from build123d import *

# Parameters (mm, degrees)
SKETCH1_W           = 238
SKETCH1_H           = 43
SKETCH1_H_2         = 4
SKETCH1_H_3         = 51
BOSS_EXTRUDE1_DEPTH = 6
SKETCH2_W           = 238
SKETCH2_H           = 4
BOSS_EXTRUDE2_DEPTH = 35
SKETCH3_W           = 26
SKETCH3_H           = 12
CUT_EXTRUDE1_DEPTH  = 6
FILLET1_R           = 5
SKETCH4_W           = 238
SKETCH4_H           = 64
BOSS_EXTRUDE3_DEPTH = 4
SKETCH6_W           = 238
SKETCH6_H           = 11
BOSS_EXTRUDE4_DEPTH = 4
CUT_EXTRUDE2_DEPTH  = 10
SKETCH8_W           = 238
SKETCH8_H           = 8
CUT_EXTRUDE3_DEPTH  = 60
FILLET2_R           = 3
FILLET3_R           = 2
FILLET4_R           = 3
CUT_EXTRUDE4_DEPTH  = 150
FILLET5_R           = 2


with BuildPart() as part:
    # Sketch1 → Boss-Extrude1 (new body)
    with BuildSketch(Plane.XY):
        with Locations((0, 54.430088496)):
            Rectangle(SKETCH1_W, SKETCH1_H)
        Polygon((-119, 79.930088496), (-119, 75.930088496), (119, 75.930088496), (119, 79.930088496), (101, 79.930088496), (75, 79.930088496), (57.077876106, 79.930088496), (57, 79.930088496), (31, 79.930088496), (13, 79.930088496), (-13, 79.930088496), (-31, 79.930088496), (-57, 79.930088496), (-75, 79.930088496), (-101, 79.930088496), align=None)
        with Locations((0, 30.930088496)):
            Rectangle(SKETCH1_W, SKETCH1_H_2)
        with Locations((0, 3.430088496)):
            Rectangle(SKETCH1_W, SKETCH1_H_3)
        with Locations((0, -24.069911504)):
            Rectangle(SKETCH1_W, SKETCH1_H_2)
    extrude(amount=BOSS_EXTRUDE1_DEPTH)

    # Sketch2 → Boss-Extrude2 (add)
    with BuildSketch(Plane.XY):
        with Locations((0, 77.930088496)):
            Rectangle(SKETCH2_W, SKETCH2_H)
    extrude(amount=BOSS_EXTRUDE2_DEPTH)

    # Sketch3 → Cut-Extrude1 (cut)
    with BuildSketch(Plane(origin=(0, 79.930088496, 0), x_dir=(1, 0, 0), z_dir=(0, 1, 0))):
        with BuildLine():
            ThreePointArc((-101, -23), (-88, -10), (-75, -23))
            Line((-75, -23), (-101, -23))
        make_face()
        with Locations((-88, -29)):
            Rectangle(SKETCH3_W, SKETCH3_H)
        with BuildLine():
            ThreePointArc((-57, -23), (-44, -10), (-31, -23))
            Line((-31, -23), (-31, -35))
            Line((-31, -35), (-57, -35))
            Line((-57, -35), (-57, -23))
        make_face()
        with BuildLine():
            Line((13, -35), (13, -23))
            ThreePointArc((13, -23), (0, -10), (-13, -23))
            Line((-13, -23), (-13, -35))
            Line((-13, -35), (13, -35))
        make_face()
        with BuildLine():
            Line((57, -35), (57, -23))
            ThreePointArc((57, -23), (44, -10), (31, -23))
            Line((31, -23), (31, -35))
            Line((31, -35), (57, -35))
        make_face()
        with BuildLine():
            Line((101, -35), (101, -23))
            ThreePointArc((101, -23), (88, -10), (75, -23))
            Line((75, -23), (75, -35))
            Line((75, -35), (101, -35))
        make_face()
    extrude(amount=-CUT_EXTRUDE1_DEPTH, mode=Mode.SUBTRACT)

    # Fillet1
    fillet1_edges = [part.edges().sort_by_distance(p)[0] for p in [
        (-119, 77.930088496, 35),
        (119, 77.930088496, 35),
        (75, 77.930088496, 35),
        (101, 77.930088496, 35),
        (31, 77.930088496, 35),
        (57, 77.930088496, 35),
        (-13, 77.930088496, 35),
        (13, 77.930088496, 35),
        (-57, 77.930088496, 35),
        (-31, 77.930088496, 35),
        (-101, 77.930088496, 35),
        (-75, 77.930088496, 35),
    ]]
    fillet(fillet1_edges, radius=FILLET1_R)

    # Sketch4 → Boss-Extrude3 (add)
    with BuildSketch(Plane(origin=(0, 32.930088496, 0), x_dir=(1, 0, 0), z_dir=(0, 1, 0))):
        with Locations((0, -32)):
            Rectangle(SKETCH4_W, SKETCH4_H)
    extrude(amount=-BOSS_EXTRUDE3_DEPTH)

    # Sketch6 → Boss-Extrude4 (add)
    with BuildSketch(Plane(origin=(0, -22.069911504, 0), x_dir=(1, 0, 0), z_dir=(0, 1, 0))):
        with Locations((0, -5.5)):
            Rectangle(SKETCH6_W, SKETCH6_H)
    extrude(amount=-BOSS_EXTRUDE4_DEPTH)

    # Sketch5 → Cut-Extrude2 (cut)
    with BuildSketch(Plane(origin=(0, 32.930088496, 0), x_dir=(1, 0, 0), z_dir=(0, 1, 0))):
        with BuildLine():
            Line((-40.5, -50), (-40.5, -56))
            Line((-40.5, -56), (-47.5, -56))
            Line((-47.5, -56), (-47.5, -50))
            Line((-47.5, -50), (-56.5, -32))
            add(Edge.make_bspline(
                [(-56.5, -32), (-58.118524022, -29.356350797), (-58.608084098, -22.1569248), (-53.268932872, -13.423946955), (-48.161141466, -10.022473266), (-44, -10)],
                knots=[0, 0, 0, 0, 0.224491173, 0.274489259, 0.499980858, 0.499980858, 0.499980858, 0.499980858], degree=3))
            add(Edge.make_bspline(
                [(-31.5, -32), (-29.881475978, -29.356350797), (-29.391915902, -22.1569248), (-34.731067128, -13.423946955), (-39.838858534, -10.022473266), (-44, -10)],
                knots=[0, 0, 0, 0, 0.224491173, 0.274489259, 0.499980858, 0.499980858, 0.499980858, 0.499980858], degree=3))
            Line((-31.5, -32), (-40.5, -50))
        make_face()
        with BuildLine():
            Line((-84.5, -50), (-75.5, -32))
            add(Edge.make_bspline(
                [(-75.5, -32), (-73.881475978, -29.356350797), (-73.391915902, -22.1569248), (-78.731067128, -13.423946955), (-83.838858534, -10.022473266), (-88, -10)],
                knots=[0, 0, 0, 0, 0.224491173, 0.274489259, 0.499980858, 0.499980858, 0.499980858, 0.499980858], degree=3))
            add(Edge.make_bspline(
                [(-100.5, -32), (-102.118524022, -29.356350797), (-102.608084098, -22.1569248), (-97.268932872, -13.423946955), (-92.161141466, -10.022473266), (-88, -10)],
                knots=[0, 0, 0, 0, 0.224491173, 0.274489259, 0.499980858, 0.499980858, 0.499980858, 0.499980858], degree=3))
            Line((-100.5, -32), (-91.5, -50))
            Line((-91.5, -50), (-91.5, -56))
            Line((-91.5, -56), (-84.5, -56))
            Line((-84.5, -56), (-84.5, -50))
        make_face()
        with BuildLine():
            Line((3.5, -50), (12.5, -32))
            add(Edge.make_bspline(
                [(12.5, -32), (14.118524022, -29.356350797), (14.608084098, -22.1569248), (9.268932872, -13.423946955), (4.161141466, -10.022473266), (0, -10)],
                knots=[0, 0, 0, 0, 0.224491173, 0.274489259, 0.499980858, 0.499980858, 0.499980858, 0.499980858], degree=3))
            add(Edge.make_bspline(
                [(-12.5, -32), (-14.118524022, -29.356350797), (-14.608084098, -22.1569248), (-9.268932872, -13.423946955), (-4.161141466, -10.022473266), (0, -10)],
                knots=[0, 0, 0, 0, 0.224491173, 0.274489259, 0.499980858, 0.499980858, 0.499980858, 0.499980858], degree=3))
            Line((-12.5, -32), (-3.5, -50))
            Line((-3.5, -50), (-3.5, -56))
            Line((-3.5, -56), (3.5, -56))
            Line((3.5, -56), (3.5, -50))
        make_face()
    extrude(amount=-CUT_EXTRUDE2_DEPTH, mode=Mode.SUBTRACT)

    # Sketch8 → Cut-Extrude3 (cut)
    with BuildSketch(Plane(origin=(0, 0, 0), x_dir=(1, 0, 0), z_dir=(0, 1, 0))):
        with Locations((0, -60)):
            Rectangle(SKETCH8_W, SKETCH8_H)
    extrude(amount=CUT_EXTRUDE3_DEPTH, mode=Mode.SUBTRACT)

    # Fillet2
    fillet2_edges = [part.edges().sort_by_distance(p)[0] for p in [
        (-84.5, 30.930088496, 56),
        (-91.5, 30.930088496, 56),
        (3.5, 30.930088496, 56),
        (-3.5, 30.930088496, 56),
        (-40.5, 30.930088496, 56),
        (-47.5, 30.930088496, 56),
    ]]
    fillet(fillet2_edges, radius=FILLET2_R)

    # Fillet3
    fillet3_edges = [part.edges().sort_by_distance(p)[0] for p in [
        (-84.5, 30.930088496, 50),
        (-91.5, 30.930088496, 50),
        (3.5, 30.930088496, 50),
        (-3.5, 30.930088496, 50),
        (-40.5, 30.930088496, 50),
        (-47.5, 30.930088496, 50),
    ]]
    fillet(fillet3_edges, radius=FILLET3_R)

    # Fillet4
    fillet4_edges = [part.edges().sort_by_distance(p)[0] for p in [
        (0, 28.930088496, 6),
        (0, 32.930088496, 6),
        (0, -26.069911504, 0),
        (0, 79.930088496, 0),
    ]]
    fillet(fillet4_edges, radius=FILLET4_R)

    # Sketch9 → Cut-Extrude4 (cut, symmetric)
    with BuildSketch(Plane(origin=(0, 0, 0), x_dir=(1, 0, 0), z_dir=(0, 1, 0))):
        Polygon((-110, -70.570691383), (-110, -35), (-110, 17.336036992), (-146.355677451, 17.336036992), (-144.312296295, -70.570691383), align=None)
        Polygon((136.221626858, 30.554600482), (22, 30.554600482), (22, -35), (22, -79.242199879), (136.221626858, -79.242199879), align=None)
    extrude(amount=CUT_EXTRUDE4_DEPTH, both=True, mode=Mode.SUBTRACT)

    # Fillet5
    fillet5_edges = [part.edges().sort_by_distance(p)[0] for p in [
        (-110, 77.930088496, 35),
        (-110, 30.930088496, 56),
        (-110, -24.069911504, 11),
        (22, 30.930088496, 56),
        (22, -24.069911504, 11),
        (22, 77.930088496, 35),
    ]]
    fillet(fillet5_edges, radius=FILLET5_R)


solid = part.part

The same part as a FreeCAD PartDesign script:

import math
import FreeCAD as App
import Part
import Sketcher

V = App.Vector
Q = App.Units.Quantity


def edges_at(feature, points):
    """Names of the edges that pass closest to the given points."""
    edges = feature.Shape.Edges
    near = lambda p: min(range(len(edges)), key=lambda i: edges[i].distToShape(Part.Vertex(*p))[0])
    return sorted({f"Edge{near(p) + 1}" for p in points})


def add_polygon(sketch, points):
    """Adds a closed chain of lines whose ends are joined by coincident constraints."""
    first, n = sketch.GeometryCount, len(points)
    for a, b in zip(points, points[1:] + points[:1]):
        sketch.addGeometry(Part.LineSegment(App.Vector(*a, 0), App.Vector(*b, 0)), False)
    for i in range(n):
        sketch.addConstraint(Sketcher.Constraint("Coincident", first + i, 2, first + (i + 1) % n, 1))

doc = App.newDocument("Part")
params = doc.addObject("Spreadsheet::Sheet", "Params")
for row, (alias, value) in enumerate([
    ("sketch1_width", "238 mm"),
    ("sketch1_height", "106 mm"),
    ("pad1_length", "6 mm"),
    ("sketch2_width", "238 mm"),
    ("sketch2_height", "4 mm"),
    ("pad2_length", "35 mm"),
    ("sketch3_radius", "13 mm"),
    ("sketch3_height", "12 mm"),
    ("pocket1_length", "6 mm"),
    ("fillet_radius", "5 mm"),
    ("sketch4_width", "238 mm"),
    ("sketch4_height", "64 mm"),
    ("pad3_length", "4 mm"),
    ("sketch5_width", "238 mm"),
    ("sketch5_height", "11 mm"),
    ("pad4_length", "4 mm"),
    ("sketch6_width", "7 mm"),
    ("sketch6_width2", "7 mm"),
    ("sketch6_width3", "7 mm"),
    ("sketch6_height", "6 mm"),
    ("sketch6_height2", "6 mm"),
    ("pocket2_length", "10 mm"),
    ("sketch7_width", "238 mm"),
    ("sketch7_height", "8 mm"),
    ("pocket3_length", "60 mm"),
    ("fillet2_radius", "3 mm"),
    ("fillet3_radius", "2 mm"),
    ("fillet4_radius", "3 mm"),
    ("pocket4_length", "300 mm"),
    ("fillet5_radius", "2 mm"),
], start=1):
    params.set(f"A{row}", alias)
    params.set(f"B{row}", "=" + value)
    params.setAlias(f"B{row}", alias)

body = doc.addObject("PartDesign::Body", "Body")

# Sketch on XY plane
sketch1 = doc.addObject("Sketcher::SketchObject", "Sketch")
body.addObject(sketch1)
sketch1.AttachmentSupport = (doc.XY_Plane, [""])
sketch1.MapMode = "FlatFace"
add_polygon(sketch1, [(119, 79.930088), (-119, 79.930088), (-119, -26.069912), (119, -26.069912)])  # lines 0-3
sketch1.addConstraint([
    Sketcher.Constraint("Horizontal", 0),
    Sketcher.Constraint("Vertical", 1),
    Sketcher.Constraint("Horizontal", 2),
    Sketcher.Constraint("Vertical", 3),
    Sketcher.Constraint("DistanceX", 0, 2, 0, 1, Q("238 mm")),
    Sketcher.Constraint("DistanceY", 1, 2, 1, 1, Q("106 mm")),
    Sketcher.Constraint("DistanceX", 0, 2, -1, 1, Q("119 mm")),
    Sketcher.Constraint("DistanceY", -1, 1, 0, 2, Q("79.930088 mm")),
])
sketch1.setExpression("Constraints[8]", "Params.sketch1_width")
sketch1.setExpression("Constraints[9]", "Params.sketch1_height")
pad1 = doc.addObject("PartDesign::Pad", "Pad")
body.addObject(pad1)
pad1.Profile = sketch1
pad1.setExpression("Length", "Params.pad1_length")

# Sketch on XY plane
sketch2 = doc.addObject("Sketcher::SketchObject", "Sketch001")
body.addObject(sketch2)
sketch2.AttachmentSupport = (doc.XY_Plane, [""])
sketch2.MapMode = "FlatFace"
add_polygon(sketch2, [(-119, 79.930088), (-119, 75.930088), (119, 75.930088), (119, 79.930088)])  # lines 0-3
sketch2.addConstraint([
    Sketcher.Constraint("Vertical", 0),
    Sketcher.Constraint("Horizontal", 1),
    Sketcher.Constraint("Vertical", 2),
    Sketcher.Constraint("Horizontal", 3),
    Sketcher.Constraint("DistanceX", 1, 1, 1, 2, Q("238 mm")),
    Sketcher.Constraint("DistanceY", 0, 2, 0, 1, Q("4 mm")),
    Sketcher.Constraint("DistanceX", 0, 2, -1, 1, Q("119 mm")),
    Sketcher.Constraint("DistanceY", -1, 1, 0, 2, Q("75.930088 mm")),
])
sketch2.setExpression("Constraints[8]", "Params.sketch2_width")
sketch2.setExpression("Constraints[9]", "Params.sketch2_height")
pad2 = doc.addObject("PartDesign::Pad", "Pad001")
body.addObject(pad2)
pad2.Profile = sketch2
pad2.setExpression("Length", "Params.pad2_length")

# Sketch on XZ plane
sketch3 = doc.addObject("Sketcher::SketchObject", "Sketch002")
body.addObject(sketch3)
sketch3.AttachmentSupport = (doc.XZ_Plane, [""])
sketch3.MapMode = "FlatFace"
sketch3.AttachmentOffset = App.Placement(V(0, 0, -79.930088), App.Rotation())
sketch3.addGeometry([
    Part.ArcOfCircle(Part.Circle(V(-88, 23, 0), V(0, 0, 1), 13), math.radians(180), math.radians(360)),  # 0
    Part.LineSegment(V(-101, 23, 0), V(-101, 35, 0)),  # 1
    Part.LineSegment(V(-101, 35, 0), V(-75, 35, 0)),  # 2
    Part.LineSegment(V(-75, 35, 0), V(-75, 23, 0)),  # 3
    Part.ArcOfCircle(Part.Circle(V(-44, 23, 0), V(0, 0, 1), 13), math.radians(180), math.radians(360)),  # 4
    Part.LineSegment(V(-57, 23, 0), V(-57, 35, 0)),  # 5
    Part.LineSegment(V(-57, 35, 0), V(-31, 35, 0)),  # 6
    Part.LineSegment(V(-31, 35, 0), V(-31, 23, 0)),  # 7
    Part.LineSegment(V(13, 35, 0), V(13, 23, 0)),  # 8
    Part.ArcOfCircle(Part.Circle(V(0, 23, 0), V(0, 0, 1), 13), math.radians(180), math.radians(360)),  # 9
    Part.LineSegment(V(-13, 23, 0), V(-13, 35, 0)),  # 10
    Part.LineSegment(V(-13, 35, 0), V(13, 35, 0)),  # 11
    Part.LineSegment(V(57, 35, 0), V(57, 23, 0)),  # 12
    Part.ArcOfCircle(Part.Circle(V(44, 23, 0), V(0, 0, 1), 13), math.radians(180), math.radians(360)),  # 13
    Part.LineSegment(V(31, 23, 0), V(31, 35, 0)),  # 14
    Part.LineSegment(V(31, 35, 0), V(57, 35, 0)),  # 15
    Part.LineSegment(V(101, 35, 0), V(101, 23, 0)),  # 16
    Part.ArcOfCircle(Part.Circle(V(88, 23, 0), V(0, 0, 1), 13), math.radians(180), math.radians(360)),  # 17
    Part.LineSegment(V(75, 23, 0), V(75, 35, 0)),  # 18
    Part.LineSegment(V(75, 35, 0), V(101, 35, 0)),  # 19
], False)
sketch3.addConstraint([
    Sketcher.Constraint("Tangent", 0, 1, 1, 1),
    Sketcher.Constraint("Coincident", 1, 2, 2, 1),
    Sketcher.Constraint("Coincident", 2, 2, 3, 1),
    Sketcher.Constraint("Tangent", 3, 2, 0, 2),
    Sketcher.Constraint("Tangent", 4, 1, 5, 1),
    Sketcher.Constraint("Coincident", 5, 2, 6, 1),
    Sketcher.Constraint("Coincident", 6, 2, 7, 1),
    Sketcher.Constraint("Tangent", 7, 2, 4, 2),
    Sketcher.Constraint("Tangent", 8, 2, 9, 2),
    Sketcher.Constraint("Tangent", 9, 1, 10, 1),
    Sketcher.Constraint("Coincident", 10, 2, 11, 1),
    Sketcher.Constraint("Coincident", 11, 2, 8, 1),
    Sketcher.Constraint("Tangent", 12, 2, 13, 2),
    Sketcher.Constraint("Tangent", 13, 1, 14, 1),
    Sketcher.Constraint("Coincident", 14, 2, 15, 1),
    Sketcher.Constraint("Coincident", 15, 2, 12, 1),
    Sketcher.Constraint("Tangent", 16, 2, 17, 2),
    Sketcher.Constraint("Tangent", 17, 1, 18, 1),
    Sketcher.Constraint("Coincident", 18, 2, 19, 1),
    Sketcher.Constraint("Coincident", 19, 2, 16, 1),
    Sketcher.Constraint("Vertical", 1),
    Sketcher.Constraint("Horizontal", 2),
    Sketcher.Constraint("Vertical", 3),
    Sketcher.Constraint("Vertical", 5),
    Sketcher.Constraint("Horizontal", 6),
    Sketcher.Constraint("Vertical", 7),
    Sketcher.Constraint("Vertical", 8),
    Sketcher.Constraint("Vertical", 10),
    Sketcher.Constraint("Horizontal", 11),
    Sketcher.Constraint("Vertical", 12),
    Sketcher.Constraint("Vertical", 14),
    Sketcher.Constraint("Horizontal", 15),
    Sketcher.Constraint("Vertical", 16),
    Sketcher.Constraint("Vertical", 18),
    Sketcher.Constraint("Horizontal", 19),
    Sketcher.Constraint("Equal", 0, 4),
    Sketcher.Constraint("Equal", 4, 9),
    Sketcher.Constraint("Equal", 9, 13),
    Sketcher.Constraint("Equal", 13, 17),
    Sketcher.Constraint("Symmetric", 4, 3, 13, 3, -2),
    Sketcher.Constraint("Symmetric", 0, 3, 17, 3, -2),
    Sketcher.Constraint("PointOnObject", 9, 3, -2),
    Sketcher.Constraint("Horizontal", 0, 3, 4, 3),
    Sketcher.Constraint("Horizontal", 4, 3, 9, 3),
    Sketcher.Constraint("Horizontal", 2, 2, 5, 2),
    Sketcher.Constraint("Horizontal", 6, 2, 10, 2),
    Sketcher.Constraint("Horizontal", 11, 2, 14, 2),
    Sketcher.Constraint("Horizontal", 15, 2, 18, 2),
    Sketcher.Constraint("Radius", 0, Q("13 mm")),
    Sketcher.Constraint("DistanceY", 1, 1, 1, 2, Q("12 mm")),
    Sketcher.Constraint("DistanceX", 0, 3, -1, 1, Q("88 mm")),
    Sketcher.Constraint("DistanceY", -1, 1, 0, 3, Q("23 mm")),
    Sketcher.Constraint("DistanceX", 4, 3, -1, 1, Q("44 mm")),
])
sketch3.setExpression("Constraints[48]", "Params.sketch3_radius")
sketch3.setExpression("Constraints[49]", "Params.sketch3_height")
pocket1 = doc.addObject("PartDesign::Pocket", "Pocket")
body.addObject(pocket1)
pocket1.Profile = sketch3
pocket1.setExpression("Length", "Params.pocket1_length")
pocket1.Reversed = True
doc.recompute()

fillet = doc.addObject("PartDesign::Fillet", "Fillet")
body.addObject(fillet)
fillet.Base = (pocket1, edges_at(pocket1, [
    (-119, 77.93, 35),
    (119, 77.93, 35),
    (75, 77.93, 35),
    (101, 77.93, 35),
    (31, 77.93, 35),
    (57, 77.93, 35),
    (-13, 77.93, 35),
    (13, 77.93, 35),
    (-57, 77.93, 35),
    (-31, 77.93, 35),
    (-101, 77.93, 35),
    (-75, 77.93, 35),
]))
fillet.setExpression("Radius", "Params.fillet_radius")

# Sketch on XZ plane
sketch4 = doc.addObject("Sketcher::SketchObject", "Sketch003")
body.addObject(sketch4)
sketch4.AttachmentSupport = (doc.XZ_Plane, [""])
sketch4.MapMode = "FlatFace"
sketch4.AttachmentOffset = App.Placement(V(0, 0, -32.930088), App.Rotation())
add_polygon(sketch4, [(-119, 0), (-119, 64), (119, 64), (119, 0)])  # lines 0-3
sketch4.addConstraint([
    Sketcher.Constraint("Vertical", 0),
    Sketcher.Constraint("Horizontal", 1),
    Sketcher.Constraint("Vertical", 2),
    Sketcher.Constraint("Horizontal", 3),
    Sketcher.Constraint("Symmetric", 2, 2, 3, 2, -1, 1),
    Sketcher.Constraint("DistanceX", 1, 1, 1, 2, Q("238 mm")),
    Sketcher.Constraint("DistanceY", 0, 1, 0, 2, Q("64 mm")),
])
sketch4.setExpression("Constraints[9]", "Params.sketch4_width")
sketch4.setExpression("Constraints[10]", "Params.sketch4_height")
pad3 = doc.addObject("PartDesign::Pad", "Pad002")
body.addObject(pad3)
pad3.Profile = sketch4
pad3.setExpression("Length", "Params.pad3_length")

# Sketch on XZ plane
sketch5 = doc.addObject("Sketcher::SketchObject", "Sketch004")
body.addObject(sketch5)
sketch5.AttachmentSupport = (doc.XZ_Plane, [""])
sketch5.MapMode = "FlatFace"
sketch5.AttachmentOffset = App.Placement(V(0, 0, 22.069912), App.Rotation())
add_polygon(sketch5, [(-119, 0), (-119, 11), (119, 11), (119, 0)])  # lines 0-3
sketch5.addConstraint([
    Sketcher.Constraint("Vertical", 0),
    Sketcher.Constraint("Horizontal", 1),
    Sketcher.Constraint("Vertical", 2),
    Sketcher.Constraint("Horizontal", 3),
    Sketcher.Constraint("Symmetric", 2, 2, 3, 2, -1, 1),
    Sketcher.Constraint("DistanceX", 1, 1, 1, 2, Q("238 mm")),
    Sketcher.Constraint("DistanceY", 0, 1, 0, 2, Q("11 mm")),
])
sketch5.setExpression("Constraints[9]", "Params.sketch5_width")
sketch5.setExpression("Constraints[10]", "Params.sketch5_height")
pad4 = doc.addObject("PartDesign::Pad", "Pad003")
body.addObject(pad4)
pad4.Profile = sketch5
pad4.setExpression("Length", "Params.pad4_length")

# Sketch on XZ plane
sketch6 = doc.addObject("Sketcher::SketchObject", "Sketch005")
body.addObject(sketch6)
sketch6.AttachmentSupport = (doc.XZ_Plane, [""])
sketch6.MapMode = "FlatFace"
sketch6.AttachmentOffset = App.Placement(V(0, 0, -32.930088), App.Rotation())
sketch6.addGeometry([
    Part.LineSegment(V(-40.5, 56, 0), V(-40.5, 50, 0)),  # 0
    Part.LineSegment(V(-40.5, 50, 0), V(-31.5, 32, 0)),  # 1
    Part.BSplineCurve([V(-31.5, 32, 0), V(-29.881476, 29.356351, 0), V(-29.391916, 22.156925, 0), V(-34.731067, 13.423947, 0), V(-39.838859, 10.022473, 0), V(-44, 10, 0)], [4, 1, 1, 4], [0, 0.224491173, 0.274489259, 0.499980858], False, 3, [1, 1, 1, 1, 1, 1], False),  # 2
    Part.BSplineCurve([V(-56.5, 32, 0), V(-58.118524, 29.356351, 0), V(-58.608084, 22.156925, 0), V(-53.268933, 13.423947, 0), V(-48.161141, 10.022473, 0), V(-44, 10, 0)], [4, 1, 1, 4], [0, 0.224491173, 0.274489259, 0.499980858], False, 3, [1, 1, 1, 1, 1, 1], False),  # 3
    Part.LineSegment(V(-56.5, 32, 0), V(-47.5, 50, 0)),  # 4
    Part.LineSegment(V(-47.5, 50, 0), V(-47.5, 56, 0)),  # 5
    Part.LineSegment(V(-47.5, 56, 0), V(-40.5, 56, 0)),  # 6
    Part.LineSegment(V(-84.5, 50, 0), V(-75.5, 32, 0)),  # 7
    Part.BSplineCurve([V(-75.5, 32, 0), V(-73.881476, 29.356351, 0), V(-73.391916, 22.156925, 0), V(-78.731067, 13.423947, 0), V(-83.838859, 10.022473, 0), V(-88, 10, 0)], [4, 1, 1, 4], [0, 0.224491173, 0.274489259, 0.499980858], False, 3, [1, 1, 1, 1, 1, 1], False),  # 8
    Part.BSplineCurve([V(-100.5, 32, 0), V(-102.118524, 29.356351, 0), V(-102.608084, 22.156925, 0), V(-97.268933, 13.423947, 0), V(-92.161141, 10.022473, 0), V(-88, 10, 0)], [4, 1, 1, 4], [0, 0.224491173, 0.274489259, 0.499980858], False, 3, [1, 1, 1, 1, 1, 1], False),  # 9
    Part.LineSegment(V(-100.5, 32, 0), V(-91.5, 50, 0)),  # 10
    Part.LineSegment(V(-91.5, 50, 0), V(-91.5, 56, 0)),  # 11
    Part.LineSegment(V(-91.5, 56, 0), V(-84.5, 56, 0)),  # 12
    Part.LineSegment(V(-84.5, 56, 0), V(-84.5, 50, 0)),  # 13
    Part.LineSegment(V(3.5, 50, 0), V(12.5, 32, 0)),  # 14
    Part.BSplineCurve([V(12.5, 32, 0), V(14.118524, 29.356351, 0), V(14.608084, 22.156925, 0), V(9.268933, 13.423947, 0), V(4.161141, 10.022473, 0), V(0, 10, 0)], [4, 1, 1, 4], [0, 0.224491173, 0.274489259, 0.499980858], False, 3, [1, 1, 1, 1, 1, 1], False),  # 15
    Part.BSplineCurve([V(-12.5, 32, 0), V(-14.118524, 29.356351, 0), V(-14.608084, 22.156925, 0), V(-9.268933, 13.423947, 0), V(-4.161141, 10.022473, 0), V(0, 10, 0)], [4, 1, 1, 4], [0, 0.224491173, 0.274489259, 0.499980858], False, 3, [1, 1, 1, 1, 1, 1], False),  # 16
    Part.LineSegment(V(-12.5, 32, 0), V(-3.5, 50, 0)),  # 17
    Part.LineSegment(V(-3.5, 50, 0), V(-3.5, 56, 0)),  # 18
    Part.LineSegment(V(-3.5, 56, 0), V(3.5, 56, 0)),  # 19
    Part.LineSegment(V(3.5, 56, 0), V(3.5, 50, 0)),  # 20
], False)
sketch6.addConstraint([
    Sketcher.Constraint("Block", 2),
    Sketcher.Constraint("Block", 3),
    Sketcher.Constraint("Block", 8),
    Sketcher.Constraint("Block", 9),
    Sketcher.Constraint("Block", 15),
    Sketcher.Constraint("Block", 16),
    Sketcher.Constraint("Coincident", 0, 2, 1, 1),
    Sketcher.Constraint("Coincident", 1, 2, 2, 1),
    Sketcher.Constraint("Coincident", 3, 1, 4, 1),
    Sketcher.Constraint("Coincident", 4, 2, 5, 1),
    Sketcher.Constraint("Coincident", 5, 2, 6, 1),
    Sketcher.Constraint("Coincident", 6, 2, 0, 1),
    Sketcher.Constraint("Coincident", 7, 2, 8, 1),
    Sketcher.Constraint("Coincident", 9, 1, 10, 1),
    Sketcher.Constraint("Coincident", 10, 2, 11, 1),
    Sketcher.Constraint("Coincident", 11, 2, 12, 1),
    Sketcher.Constraint("Coincident", 12, 2, 13, 1),
    Sketcher.Constraint("Coincident", 13, 2, 7, 1),
    Sketcher.Constraint("Coincident", 14, 2, 15, 1),
    Sketcher.Constraint("Coincident", 16, 1, 17, 1),
    Sketcher.Constraint("Coincident", 17, 2, 18, 1),
    Sketcher.Constraint("Coincident", 18, 2, 19, 1),
    Sketcher.Constraint("Coincident", 19, 2, 20, 1),
    Sketcher.Constraint("Coincident", 20, 2, 14, 1),
    Sketcher.Constraint("Vertical", 0),
    Sketcher.Constraint("Vertical", 5),
    Sketcher.Constraint("Horizontal", 6),
    Sketcher.Constraint("Vertical", 11),
    Sketcher.Constraint("Horizontal", 12),
    Sketcher.Constraint("Vertical", 13),
    Sketcher.Constraint("Vertical", 18),
    Sketcher.Constraint("Horizontal", 19),
    Sketcher.Constraint("Vertical", 20),
    Sketcher.Constraint("DistanceX", 6, 1, 6, 2, Q("7 mm")),
    Sketcher.Constraint("DistanceX", 12, 1, 12, 2, Q("7 mm")),
    Sketcher.Constraint("DistanceX", 19, 1, 19, 2, Q("7 mm")),
    Sketcher.Constraint("DistanceY", 0, 2, 0, 1, Q("6 mm")),
    Sketcher.Constraint("DistanceY", 5, 1, 5, 2, Q("6 mm")),
    Sketcher.Constraint("DistanceY", 11, 1, 11, 2, Q("6 mm")),
    Sketcher.Constraint("DistanceY", 13, 2, 13, 1, Q("6 mm")),
    Sketcher.Constraint("DistanceY", 18, 1, 18, 2, Q("6 mm")),
    Sketcher.Constraint("DistanceY", 20, 2, 20, 1, Q("6 mm")),
    Sketcher.Constraint("DistanceY", -1, 1, 0, 2, Q("50 mm")),
    Sketcher.Constraint("DistanceY", -1, 1, 10, 2, Q("50 mm")),
    Sketcher.Constraint("DistanceY", -1, 1, 17, 2, Q("50 mm")),
    Sketcher.Constraint("DistanceX", 0, 2, 1, 2, Q("9 mm")),
    Sketcher.Constraint("DistanceX", 10, 2, 7, 2, Q("16 mm")),
    Sketcher.Constraint("DistanceX", 17, 2, 14, 2, Q("16 mm")),
])
sketch6.setExpression("Constraints[33]", "Params.sketch6_width")
sketch6.setExpression("Constraints[34]", "Params.sketch6_width2")
sketch6.setExpression("Constraints[35]", "Params.sketch6_width3")
sketch6.setExpression("Constraints[36]", "Params.sketch6_height")
sketch6.setExpression("Constraints[37]", "Params.sketch6_height2")
pocket2 = doc.addObject("PartDesign::Pocket", "Pocket001")
body.addObject(pocket2)
pocket2.Profile = sketch6
pocket2.setExpression("Length", "Params.pocket2_length")
pocket2.Reversed = True

# Sketch on XZ plane
sketch7 = doc.addObject("Sketcher::SketchObject", "Sketch006")
body.addObject(sketch7)
sketch7.AttachmentSupport = (doc.XZ_Plane, [""])
sketch7.MapMode = "FlatFace"
add_polygon(sketch7, [(-119, 56), (-119, 64), (119, 64), (119, 56)])  # lines 0-3
sketch7.addConstraint([
    Sketcher.Constraint("Vertical", 0),
    Sketcher.Constraint("Horizontal", 1),
    Sketcher.Constraint("Vertical", 2),
    Sketcher.Constraint("Horizontal", 3),
    Sketcher.Constraint("DistanceX", 1, 1, 1, 2, Q("238 mm")),
    Sketcher.Constraint("DistanceY", 0, 1, 0, 2, Q("8 mm")),
    Sketcher.Constraint("DistanceX", 0, 2, -1, 1, Q("119 mm")),
    Sketcher.Constraint("DistanceY", -1, 1, 0, 2, Q("64 mm")),
])
sketch7.setExpression("Constraints[8]", "Params.sketch7_width")
sketch7.setExpression("Constraints[9]", "Params.sketch7_height")
pocket3 = doc.addObject("PartDesign::Pocket", "Pocket002")
body.addObject(pocket3)
pocket3.Profile = sketch7
pocket3.setExpression("Length", "Params.pocket3_length")
doc.recompute()

fillet2 = doc.addObject("PartDesign::Fillet", "Fillet001")
body.addObject(fillet2)
fillet2.Base = (pocket3, edges_at(pocket3, [
    (-84.5, 30.93, 56),
    (-91.5, 30.93, 56),
    (3.5, 30.93, 56),
    (-3.5, 30.93, 56),
    (-40.5, 30.93, 56),
    (-47.5, 30.93, 56),
]))
fillet2.setExpression("Radius", "Params.fillet2_radius")
doc.recompute()

fillet3 = doc.addObject("PartDesign::Fillet", "Fillet002")
body.addObject(fillet3)
fillet3.Base = (fillet2, edges_at(fillet2, [
    (-84.5, 30.93, 50),
    (-91.5, 30.93, 50),
    (3.5, 30.93, 50),
    (-3.5, 30.93, 50),
    (-40.5, 30.93, 50),
    (-47.5, 30.93, 50),
]))
fillet3.setExpression("Radius", "Params.fillet3_radius")
doc.recompute()

fillet4 = doc.addObject("PartDesign::Fillet", "Fillet003")
body.addObject(fillet4)
fillet4.Base = (fillet3, edges_at(fillet3, [
    (0, 28.93, 6),
    (0, 32.93, 6),
    (0, -26.07, 0),
    (0, 79.93, 0),
]))
fillet4.setExpression("Radius", "Params.fillet4_radius")

# Sketch on XZ plane
sketch8 = doc.addObject("Sketcher::SketchObject", "Sketch007")
body.addObject(sketch8)
sketch8.AttachmentSupport = (doc.XZ_Plane, [""])
sketch8.MapMode = "FlatFace"
add_polygon(sketch8, [(-110, 70.570691), (-110, -17.336037), (-146.355677, -17.336037), (-144.312296, 70.570691)])  # lines 0-3
add_polygon(sketch8, [(136.221627, -30.5546), (22, -30.5546), (22, 79.2422), (136.221627, 79.2422)])  # lines 4-7
sketch8.addConstraint([
    Sketcher.Constraint("Vertical", 0),
    Sketcher.Constraint("Horizontal", 1),
    Sketcher.Constraint("Horizontal", 3),
    Sketcher.Constraint("Horizontal", 4),
    Sketcher.Constraint("Vertical", 5),
    Sketcher.Constraint("Horizontal", 6),
    Sketcher.Constraint("Vertical", 7),
    Sketcher.Constraint("DistanceX", 0, 2, -1, 1, Q("110 mm")),
    Sketcher.Constraint("DistanceX", -1, 1, 4, 2, Q("22 mm")),
    Sketcher.Constraint("DistanceY", 5, 1, 5, 2, Q("109.7968 mm")),
    Sketcher.Constraint("DistanceY", 0, 2, 0, 1, Q("87.906728 mm")),
    Sketcher.Constraint("DistanceY", 4, 2, -1, 1, Q("30.5546 mm")),
    Sketcher.Constraint("DistanceX", 1, 2, 1, 1, Q("36.355677 mm")),
    Sketcher.Constraint("DistanceX", 3, 1, 3, 2, Q("34.312296 mm")),
    Sketcher.Constraint("DistanceX", 4, 2, 4, 1, Q("114.221627 mm")),
    Sketcher.Constraint("DistanceY", -1, 1, 2, 2, Q("70.570691 mm")),
])
pocket4 = doc.addObject("PartDesign::Pocket", "Pocket003")
body.addObject(pocket4)
pocket4.Profile = sketch8
pocket4.setExpression("Length", "Params.pocket4_length")
pocket4.Midplane = True
doc.recompute()

fillet5 = doc.addObject("PartDesign::Fillet", "Fillet004")
body.addObject(fillet5)
fillet5.Base = (pocket4, edges_at(pocket4, [
    (-110, 77.93, 35),
    (-110, 30.93, 56),
    (-110, -24.07, 11),
    (22, 30.93, 56),
    (22, -24.07, 11),
    (22, 77.93, 35),
]))
fillet5.setExpression("Radius", "Params.fillet5_radius")

doc.recompute()
